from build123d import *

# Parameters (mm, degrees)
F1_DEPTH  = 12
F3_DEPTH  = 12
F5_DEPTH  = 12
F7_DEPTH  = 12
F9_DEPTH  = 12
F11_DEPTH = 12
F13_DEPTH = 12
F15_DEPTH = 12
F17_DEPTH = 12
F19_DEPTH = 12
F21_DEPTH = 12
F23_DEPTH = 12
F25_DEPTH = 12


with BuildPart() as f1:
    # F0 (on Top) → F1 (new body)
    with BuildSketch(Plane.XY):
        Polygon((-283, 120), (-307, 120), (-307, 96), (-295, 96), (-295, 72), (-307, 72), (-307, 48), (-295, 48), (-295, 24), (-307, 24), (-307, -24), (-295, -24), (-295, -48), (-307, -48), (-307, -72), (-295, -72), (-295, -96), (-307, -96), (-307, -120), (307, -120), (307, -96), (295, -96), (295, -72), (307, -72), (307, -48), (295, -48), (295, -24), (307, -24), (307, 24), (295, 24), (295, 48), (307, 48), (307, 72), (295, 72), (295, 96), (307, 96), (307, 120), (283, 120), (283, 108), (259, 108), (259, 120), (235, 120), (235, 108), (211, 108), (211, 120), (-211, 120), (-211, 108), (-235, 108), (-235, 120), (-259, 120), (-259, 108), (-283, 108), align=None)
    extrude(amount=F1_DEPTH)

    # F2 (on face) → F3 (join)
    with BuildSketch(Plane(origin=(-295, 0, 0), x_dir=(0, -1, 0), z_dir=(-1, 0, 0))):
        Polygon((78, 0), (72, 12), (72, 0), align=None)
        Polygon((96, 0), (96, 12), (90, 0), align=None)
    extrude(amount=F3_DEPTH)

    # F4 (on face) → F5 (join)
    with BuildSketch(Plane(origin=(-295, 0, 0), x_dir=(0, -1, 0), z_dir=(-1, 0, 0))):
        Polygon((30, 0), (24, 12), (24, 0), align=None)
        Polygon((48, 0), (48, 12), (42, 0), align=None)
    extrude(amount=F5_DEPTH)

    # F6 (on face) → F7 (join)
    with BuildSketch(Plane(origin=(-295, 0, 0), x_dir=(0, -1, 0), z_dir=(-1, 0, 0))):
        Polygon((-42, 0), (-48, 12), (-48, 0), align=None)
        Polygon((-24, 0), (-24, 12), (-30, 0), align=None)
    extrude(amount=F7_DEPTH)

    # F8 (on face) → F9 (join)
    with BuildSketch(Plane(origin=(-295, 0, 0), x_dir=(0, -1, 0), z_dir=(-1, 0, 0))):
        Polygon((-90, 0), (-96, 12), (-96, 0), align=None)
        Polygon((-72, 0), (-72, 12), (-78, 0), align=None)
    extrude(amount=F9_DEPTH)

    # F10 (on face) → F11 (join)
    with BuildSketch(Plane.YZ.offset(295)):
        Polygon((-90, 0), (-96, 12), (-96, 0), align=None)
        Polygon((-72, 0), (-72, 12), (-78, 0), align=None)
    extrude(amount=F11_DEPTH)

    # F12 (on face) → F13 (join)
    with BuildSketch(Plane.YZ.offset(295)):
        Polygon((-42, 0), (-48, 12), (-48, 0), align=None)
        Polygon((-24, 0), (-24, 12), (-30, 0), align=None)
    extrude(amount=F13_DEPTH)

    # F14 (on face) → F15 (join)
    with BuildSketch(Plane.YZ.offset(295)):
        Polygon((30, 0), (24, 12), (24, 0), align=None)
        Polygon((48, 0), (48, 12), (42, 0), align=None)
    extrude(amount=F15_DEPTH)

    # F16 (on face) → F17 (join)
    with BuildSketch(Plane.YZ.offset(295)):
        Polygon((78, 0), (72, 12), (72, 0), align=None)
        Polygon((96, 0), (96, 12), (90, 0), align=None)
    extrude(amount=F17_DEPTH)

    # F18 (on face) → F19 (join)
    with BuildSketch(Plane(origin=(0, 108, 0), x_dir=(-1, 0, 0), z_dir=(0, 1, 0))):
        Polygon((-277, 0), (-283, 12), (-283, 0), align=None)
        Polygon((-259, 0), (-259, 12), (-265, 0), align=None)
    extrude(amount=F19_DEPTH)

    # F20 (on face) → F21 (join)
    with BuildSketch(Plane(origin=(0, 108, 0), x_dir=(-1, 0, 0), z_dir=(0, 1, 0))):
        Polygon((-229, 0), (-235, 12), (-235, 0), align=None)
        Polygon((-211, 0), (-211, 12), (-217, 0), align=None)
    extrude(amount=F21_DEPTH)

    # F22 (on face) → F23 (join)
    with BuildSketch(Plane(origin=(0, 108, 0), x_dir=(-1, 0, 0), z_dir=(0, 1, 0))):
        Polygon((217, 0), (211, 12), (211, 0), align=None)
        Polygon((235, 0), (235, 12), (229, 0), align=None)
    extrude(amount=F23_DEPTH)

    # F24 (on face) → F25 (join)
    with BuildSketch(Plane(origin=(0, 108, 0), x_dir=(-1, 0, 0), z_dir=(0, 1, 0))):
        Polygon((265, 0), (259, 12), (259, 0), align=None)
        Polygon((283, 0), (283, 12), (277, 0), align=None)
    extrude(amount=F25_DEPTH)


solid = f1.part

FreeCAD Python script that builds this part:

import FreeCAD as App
import Part
import Sketcher
Q = App.Units.Quantity


def add_polygon(sketch, points):
    """Adds a closed chain of lines whose ends are joined by coincident constraints."""
    first, n = sketch.GeometryCount, len(points)
    for a, b in zip(points, points[1:] + points[:1]):
        sketch.addGeometry(Part.LineSegment(App.Vector(*a, 0), App.Vector(*b, 0)), False)
    for i in range(n):
        sketch.addConstraint(Sketcher.Constraint("Coincident", first + i, 2, first + (i + 1) % n, 1))

doc = App.newDocument("Part")
body = doc.addObject("PartDesign::Body", "Body")

sketch1 = body.newObject("Sketcher::SketchObject", "Sketch")
sketch1.AttachmentSupport = (doc.getObject("XY_Plane"), [""])
sketch1.MapMode = "FlatFace"
add_polygon(sketch1, [(-283, 120), (-307, 120), (-307, 96), (-295, 96), (-295, 72), (-307, 72), (-307, 48), (-295, 48), (-295, 24), (-307, 24), (-307, -24), (-295, -24), (-295, -48), (-307, -48), (-307, -72), (-295, -72), (-295, -96), (-307, -96), (-307, -120), (307, -120), (307, -96), (295, -96), (295, -72), (307, -72), (307, -48), (295, -48), (295, -24), (307, -24), (307, 24), (295, 24), (295, 48), (307, 48), (307, 72), (295, 72), (295, 96), (307, 96), (307, 120), (283, 120), (283, 108), (259, 108), (259, 120), (235, 120), (235, 108), (211, 108), (211, 120), (-211, 120), (-211, 108), (-235, 108), (-235, 120), (-259, 120), (-259, 108), (-283, 108)])
sketch1.addConstraint(Sketcher.Constraint("Horizontal", 0))
sketch1.addConstraint(Sketcher.Constraint("Vertical", 1))
sketch1.addConstraint(Sketcher.Constraint("Horizontal", 2))
sketch1.addConstraint(Sketcher.Constraint("Vertical", 3))
sketch1.addConstraint(Sketcher.Constraint("Horizontal", 4))
sketch1.addConstraint(Sketcher.Constraint("Vertical", 5))
sketch1.addConstraint(Sketcher.Constraint("Horizontal", 6))
sketch1.addConstraint(Sketcher.Constraint("Vertical", 7))
sketch1.addConstraint(Sketcher.Constraint("Horizontal", 8))
sketch1.addConstraint(Sketcher.Constraint("Vertical", 9))
sketch1.addConstraint(Sketcher.Constraint("Horizontal", 10))
sketch1.addConstraint(Sketcher.Constraint("Vertical", 11))
sketch1.addConstraint(Sketcher.Constraint("Horizontal", 12))
sketch1.addConstraint(Sketcher.Constraint("Vertical", 13))
sketch1.addConstraint(Sketcher.Constraint("Horizontal", 14))
sketch1.addConstraint(Sketcher.Constraint("Vertical", 15))
sketch1.addConstraint(Sketcher.Constraint("Horizontal", 16))
sketch1.addConstraint(Sketcher.Constraint("Vertical", 17))
sketch1.addConstraint(Sketcher.Constraint("Horizontal", 18))
sketch1.addConstraint(Sketcher.Constraint("Vertical", 19))
sketch1.addConstraint(Sketcher.Constraint("Horizontal", 20))
sketch1.addConstraint(Sketcher.Constraint("Vertical", 21))
sketch1.addConstraint(Sketcher.Constraint("Horizontal", 22))
sketch1.addConstraint(Sketcher.Constraint("Vertical", 23))
sketch1.addConstraint(Sketcher.Constraint("Horizontal", 24))
sketch1.addConstraint(Sketcher.Constraint("Vertical", 25))
sketch1.addConstraint(Sketcher.Constraint("Horizontal", 26))
sketch1.addConstraint(Sketcher.Constraint("Vertical", 27))
sketch1.addConstraint(Sketcher.Constraint("Horizontal", 28))
sketch1.addConstraint(Sketcher.Constraint("Vertical", 29))
sketch1.addConstraint(Sketcher.Constraint("Horizontal", 30))
sketch1.addConstraint(Sketcher.Constraint("Vertical", 31))
sketch1.addConstraint(Sketcher.Constraint("Horizontal", 32))
sketch1.addConstraint(Sketcher.Constraint("Vertical", 33))
sketch1.addConstraint(Sketcher.Constraint("Horizontal", 34))
sketch1.addConstraint(Sketcher.Constraint("Vertical", 35))
sketch1.addConstraint(Sketcher.Constraint("Horizontal", 36))
sketch1.addConstraint(Sketcher.Constraint("Vertical", 37))
sketch1.addConstraint(Sketcher.Constraint("Horizontal", 38))
sketch1.addConstraint(Sketcher.Constraint("Vertical", 39))
sketch1.addConstraint(Sketcher.Constraint("Horizontal", 40))
sketch1.addConstraint(Sketcher.Constraint("Vertical", 41))
sketch1.addConstraint(Sketcher.Constraint("Horizontal", 42))
sketch1.addConstraint(Sketcher.Constraint("Vertical", 43))
sketch1.addConstraint(Sketcher.Constraint("Horizontal", 44))
sketch1.addConstraint(Sketcher.Constraint("Vertical", 45))
sketch1.addConstraint(Sketcher.Constraint("Horizontal", 46))
sketch1.addConstraint(Sketcher.Constraint("Vertical", 47))
sketch1.addConstraint(Sketcher.Constraint("Horizontal", 48))
sketch1.addConstraint(Sketcher.Constraint("Vertical", 49))
sketch1.addConstraint(Sketcher.Constraint("Horizontal", 50))
sketch1.addConstraint(Sketcher.Constraint("Vertical", 51))
sketch1.addConstraint(Sketcher.Constraint("Symmetric", 0, 2, 18, 2, -1, 1))
sketch1.addConstraint(Sketcher.Constraint("Symmetric", 2, 2, 20, 2, -1, 1))
sketch1.addConstraint(Sketcher.Constraint("Symmetric", 4, 2, 22, 2, -1, 1))
sketch1.addConstraint(Sketcher.Constraint("Symmetric", 6, 2, 24, 2, -1, 1))
sketch1.addConstraint(Sketcher.Constraint("Symmetric", 8, 2, 26, 2, -1, 1))
sketch1.addConstraint(Sketcher.Constraint("Symmetric", 10, 2, 28, 2, -1, 1))
sketch1.addConstraint(Sketcher.Constraint("Symmetric", 12, 2, 30, 2, -1, 1))
sketch1.addConstraint(Sketcher.Constraint("Symmetric", 14, 2, 32, 2, -1, 1))
sketch1.addConstraint(Sketcher.Constraint("Symmetric", 16, 2, 34, 2, -1, 1))
sketch1.addConstraint(Sketcher.Constraint("Symmetric", 16, 2, 19, 2, -2))
sketch1.addConstraint(Sketcher.Constraint("Symmetric", 14, 2, 21, 2, -2))
sketch1.addConstraint(Sketcher.Constraint("Symmetric", 12, 2, 23, 2, -2))
sketch1.addConstraint(Sketcher.Constraint("Symmetric", 10, 2, 25, 2, -2))
sketch1.addConstraint(Sketcher.Constraint("Symmetric", 42, 2, 45, 2, -2))
sketch1.addConstraint(Sketcher.Constraint("Symmetric", 40, 2, 47, 2, -2))
sketch1.addConstraint(Sketcher.Constraint("Symmetric", 38, 2, 49, 2, -2))
sketch1.addConstraint(Sketcher.Constraint("Symmetric", 36, 2, 51, 2, -2))
sketch1.addConstraint(Sketcher.Constraint("Horizontal", 36, 2, 39, 2))
sketch1.addConstraint(Sketcher.Constraint("Horizontal", 38, 2, 41, 2))
sketch1.addConstraint(Sketcher.Constraint("Horizontal", 40, 2, 43, 2))
sketch1.addConstraint(Sketcher.Constraint("Vertical", 1, 2, 4, 2))
sketch1.addConstraint(Sketcher.Constraint("Vertical", 3, 2, 6, 2))
sketch1.addConstraint(Sketcher.Constraint("Vertical", 5, 2, 8, 2))
sketch1.addConstraint(Sketcher.Constraint("Equal", 36, 38))
sketch1.addConstraint(Sketcher.Constraint("Equal", 38, 40))
sketch1.addConstraint(Sketcher.Constraint("Equal", 40, 42))
sketch1.addConstraint(Sketcher.Constraint("Equal", 50, 1))
sketch1.addConstraint(Sketcher.Constraint("Equal", 1, 3))
sketch1.addConstraint(Sketcher.Constraint("Equal", 3, 5))
sketch1.addConstraint(Sketcher.Constraint("Equal", 5, 7))
sketch1.addConstraint(Sketcher.Constraint("Equal", 34, 37))
sketch1.addConstraint(Sketcher.Constraint("DistanceX", 0, 2, 0, 1, Q("24 mm")))
sketch1.addConstraint(Sketcher.Constraint("DistanceX", 2, 1, 2, 2, Q("12 mm")))
sketch1.addConstraint(Sketcher.Constraint("DistanceX", 18, 1, 18, 2, Q("614 mm")))
sketch1.addConstraint(Sketcher.Constraint("DistanceY", 9, 2, 9, 1, Q("48 mm")))
pad1 = body.newObject("PartDesign::Pad", "Pad")
pad1.Profile = sketch1
pad1.Length = 12

sketch2 = body.newObject("Sketcher::SketchObject", "Sketch001")
sketch2.AttachmentSupport = (doc.getObject("YZ_Plane"), [""])
sketch2.MapMode = "FlatFace"
sketch2.AttachmentOffset = App.Placement(App.Vector(0, 0, -295), App.Rotation())
add_polygon(sketch2, [(-78, 0), (-72, 12), (-72, 0)])
add_polygon(sketch2, [(-96, 0), (-96, 12), (-90, 0)])
sketch2.addConstraint(Sketcher.Constraint("Vertical", 1))
sketch2.addConstraint(Sketcher.Constraint("Horizontal", 2))
sketch2.addConstraint(Sketcher.Constraint("Vertical", 3))
sketch2.addConstraint(Sketcher.Constraint("Horizontal", 5))
sketch2.addConstraint(Sketcher.Constraint("PointOnObject", 1, 2, -1))
sketch2.addConstraint(Sketcher.Constraint("PointOnObject", 4, 2, -1))
sketch2.addConstraint(Sketcher.Constraint("Horizontal", 0, 2, 3, 2))
sketch2.addConstraint(Sketcher.Constraint("Equal", 2, 5))
sketch2.addConstraint(Sketcher.Constraint("DistanceX", 2, 2, 2, 1, Q("6 mm")))
sketch2.addConstraint(Sketcher.Constraint("DistanceY", 1, 2, 1, 1, Q("12 mm")))
sketch2.addConstraint(Sketcher.Constraint("DistanceX", 0, 2, -1, 1, Q("72 mm")))
sketch2.addConstraint(Sketcher.Constraint("DistanceX", 3, 2, -1, 1, Q("96 mm")))
pad2 = body.newObject("PartDesign::Pad", "Pad001")
pad2.Profile = sketch2
pad2.Length = 12
pad2.Reversed = True

sketch3 = body.newObject("Sketcher::SketchObject", "Sketch002")
sketch3.AttachmentSupport = (doc.getObject("YZ_Plane"), [""])
sketch3.MapMode = "FlatFace"
sketch3.AttachmentOffset = App.Placement(App.Vector(0, 0, -295), App.Rotation())
add_polygon(sketch3, [(-30, 0), (-24, 12), (-24, 0)])
add_polygon(sketch3, [(-48, 0), (-48, 12), (-42, 0)])
sketch3.addConstraint(Sketcher.Constraint("Vertical", 1))
sketch3.addConstraint(Sketcher.Constraint("Horizontal", 2))
sketch3.addConstraint(Sketcher.Constraint("Vertical", 3))
sketch3.addConstraint(Sketcher.Constraint("Horizontal", 5))
sketch3.addConstraint(Sketcher.Constraint("PointOnObject", 1, 2, -1))
sketch3.addConstraint(Sketcher.Constraint("PointOnObject", 4, 2, -1))
sketch3.addConstraint(Sketcher.Constraint("Horizontal", 0, 2, 3, 2))
sketch3.addConstraint(Sketcher.Constraint("Equal", 2, 5))
sketch3.addConstraint(Sketcher.Constraint("DistanceX", 2, 2, 2, 1, Q("6 mm")))
sketch3.addConstraint(Sketcher.Constraint("DistanceY", 1, 2, 1, 1, Q("12 mm")))
sketch3.addConstraint(Sketcher.Constraint("DistanceX", 0, 2, -1, 1, Q("24 mm")))
sketch3.addConstraint(Sketcher.Constraint("DistanceX", 3, 2, -1, 1, Q("48 mm")))
pad3 = body.newObject("PartDesign::Pad", "Pad002")
pad3.Profile = sketch3
pad3.Length = 12
pad3.Reversed = True

sketch4 = body.newObject("Sketcher::SketchObject", "Sketch003")
sketch4.AttachmentSupport = (doc.getObject("YZ_Plane"), [""])
sketch4.MapMode = "FlatFace"
sketch4.AttachmentOffset = App.Placement(App.Vector(0, 0, -295), App.Rotation())
add_polygon(sketch4, [(42, 0), (48, 12), (48, 0)])
add_polygon(sketch4, [(24, 0), (24, 12), (30, 0)])
sketch4.addConstraint(Sketcher.Constraint("Vertical", 1))
sketch4.addConstraint(Sketcher.Constraint("Horizontal", 2))
sketch4.addConstraint(Sketcher.Constraint("Vertical", 3))
sketch4.addConstraint(Sketcher.Constraint("Horizontal", 5))
sketch4.addConstraint(Sketcher.Constraint("PointOnObject", 1, 2, -1))
sketch4.addConstraint(Sketcher.Constraint("PointOnObject", 4, 2, -1))
sketch4.addConstraint(Sketcher.Constraint("Horizontal", 0, 2, 3, 2))
sketch4.addConstraint(Sketcher.Constraint("Equal", 2, 5))
sketch4.addConstraint(Sketcher.Constraint("DistanceX", 2, 2, 2, 1, Q("6 mm")))
sketch4.addConstraint(Sketcher.Constraint("DistanceY", 1, 2, 1, 1, Q("12 mm")))
sketch4.addConstraint(Sketcher.Constraint("DistanceX", -1, 1, 0, 2, Q("48 mm")))
sketch4.addConstraint(Sketcher.Constraint("DistanceX", -1, 1, 3, 2, Q("24 mm")))
pad4 = body.newObject("PartDesign::Pad", "Pad003")
pad4.Profile = sketch4
pad4.Length = 12
pad4.Reversed = True

sketch5 = body.newObject("Sketcher::SketchObject", "Sketch004")
sketch5.AttachmentSupport = (doc.getObject("YZ_Plane"), [""])
sketch5.MapMode = "FlatFace"
sketch5.AttachmentOffset = App.Placement(App.Vector(0, 0, -295), App.Rotation())
add_polygon(sketch5, [(90, 0), (96, 12), (96, 0)])
add_polygon(sketch5, [(72, 0), (72, 12), (78, 0)])
sketch5.addConstraint(Sketcher.Constraint("Vertical", 1))
sketch5.addConstraint(Sketcher.Constraint("Horizontal", 2))
sketch5.addConstraint(Sketcher.Constraint("Vertical", 3))
sketch5.addConstraint(Sketcher.Constraint("Horizontal", 5))
sketch5.addConstraint(Sketcher.Constraint("PointOnObject", 1, 2, -1))
sketch5.addConstraint(Sketcher.Constraint("PointOnObject", 4, 2, -1))
sketch5.addConstraint(Sketcher.Constraint("Horizontal", 0, 2, 3, 2))
sketch5.addConstraint(Sketcher.Constraint("Equal", 2, 5))
sketch5.addConstraint(Sketcher.Constraint("DistanceX", 2, 2, 2, 1, Q("6 mm")))
sketch5.addConstraint(Sketcher.Constraint("DistanceY", 1, 2, 1, 1, Q("12 mm")))
sketch5.addConstraint(Sketcher.Constraint("DistanceX", -1, 1, 0, 2, Q("96 mm")))
sketch5.addConstraint(Sketcher.Constraint("DistanceX", -1, 1, 3, 2, Q("72 mm")))
pad5 = body.newObject("PartDesign::Pad", "Pad004")
pad5.Profile = sketch5
pad5.Length = 12
pad5.Reversed = True

sketch6 = body.newObject("Sketcher::SketchObject", "Sketch005")
sketch6.AttachmentSupport = (doc.getObject("YZ_Plane"), [""])
sketch6.MapMode = "FlatFace"
sketch6.AttachmentOffset = App.Placement(App.Vector(0, 0, 295), App.Rotation())
add_polygon(sketch6, [(-90, 0), (-96, 12), (-96, 0)])
add_polygon(sketch6, [(-72, 0), (-72, 12), (-78, 0)])
sketch6.addConstraint(Sketcher.Constraint("Vertical", 1))
sketch6.addConstraint(Sketcher.Constraint("Horizontal", 2))
sketch6.addConstraint(Sketcher.Constraint("Vertical", 3))
sketch6.addConstraint(Sketcher.Constraint("Horizontal", 5))
sketch6.addConstraint(Sketcher.Constraint("PointOnObject", 1, 2, -1))
sketch6.addConstraint(Sketcher.Constraint("PointOnObject", 4, 2, -1))
sketch6.addConstraint(Sketcher.Constraint("Horizontal", 0, 2, 3, 2))
sketch6.addConstraint(Sketcher.Constraint("Equal", 2, 5))
sketch6.addConstraint(Sketcher.Constraint("DistanceX", 2, 1, 2, 2, Q("6 mm")))
sketch6.addConstraint(Sketcher.Constraint("DistanceY", 1, 2, 1, 1, Q("12 mm")))
sketch6.addConstraint(Sketcher.Constraint("DistanceX", 0, 2, -1, 1, Q("96 mm")))
sketch6.addConstraint(Sketcher.Constraint("DistanceX", 3, 2, -1, 1, Q("72 mm")))
pad6 = body.newObject("PartDesign::Pad", "Pad005")
pad6.Profile = sketch6
pad6.Length = 12

sketch7 = body.newObject("Sketcher::SketchObject", "Sketch006")
sketch7.AttachmentSupport = (doc.getObject("YZ_Plane"), [""])
sketch7.MapMode = "FlatFace"
sketch7.AttachmentOffset = App.Placement(App.Vector(0, 0, 295), App.Rotation())
add_polygon(sketch7, [(-42, 0), (-48, 12), (-48, 0)])
add_polygon(sketch7, [(-24, 0), (-24, 12), (-30, 0)])
sketch7.addConstraint(Sketcher.Constraint("Vertical", 1))
sketch7.addConstraint(Sketcher.Constraint("Horizontal", 2))
sketch7.addConstraint(Sketcher.Constraint("Vertical", 3))
sketch7.addConstraint(Sketcher.Constraint("Horizontal", 5))
sketch7.addConstraint(Sketcher.Constraint("PointOnObject", 1, 2, -1))
sketch7.addConstraint(Sketcher.Constraint("PointOnObject", 4, 2, -1))
sketch7.addConstraint(Sketcher.Constraint("Horizontal", 0, 2, 3, 2))
sketch7.addConstraint(Sketcher.Constraint("Equal", 2, 5))
sketch7.addConstraint(Sketcher.Constraint("DistanceX", 2, 1, 2, 2, Q("6 mm")))
sketch7.addConstraint(Sketcher.Constraint("DistanceY", 1, 2, 1, 1, Q("12 mm")))
sketch7.addConstraint(Sketcher.Constraint("DistanceX", 0, 2, -1, 1, Q("48 mm")))
sketch7.addConstraint(Sketcher.Constraint("DistanceX", 3, 2, -1, 1, Q("24 mm")))
pad7 = body.newObject("PartDesign::Pad", "Pad006")
pad7.Profile = sketch7
pad7.Length = 12

sketch8 = body.newObject("Sketcher::SketchObject", "Sketch007")
sketch8.AttachmentSupport = (doc.getObject("YZ_Plane"), [""])
sketch8.MapMode = "FlatFace"
sketch8.AttachmentOffset = App.Placement(App.Vector(0, 0, 295), App.Rotation())
add_polygon(sketch8, [(30, 0), (24, 12), (24, 0)])
add_polygon(sketch8, [(48, 0), (48, 12), (42, 0)])
sketch8.addConstraint(Sketcher.Constraint("Vertical", 1))
sketch8.addConstraint(Sketcher.Constraint("Horizontal", 2))
sketch8.addConstraint(Sketcher.Constraint("Vertical", 3))
sketch8.addConstraint(Sketcher.Constraint("Horizontal", 5))
sketch8.addConstraint(Sketcher.Constraint("PointOnObject", 1, 2, -1))
sketch8.addConstraint(Sketcher.Constraint("PointOnObject", 4, 2, -1))
sketch8.addConstraint(Sketcher.Constraint("Horizontal", 0, 2, 3, 2))
sketch8.addConstraint(Sketcher.Constraint("Equal", 2, 5))
sketch8.addConstraint(Sketcher.Constraint("DistanceX", 2, 1, 2, 2, Q("6 mm")))
sketch8.addConstraint(Sketcher.Constraint("DistanceY", 1, 2, 1, 1, Q("12 mm")))
sketch8.addConstraint(Sketcher.Constraint("DistanceX", -1, 1, 0, 2, Q("24 mm")))
sketch8.addConstraint(Sketcher.Constraint("DistanceX", -1, 1, 3, 2, Q("48 mm")))
pad8 = body.newObject("PartDesign::Pad", "Pad007")
pad8.Profile = sketch8
pad8.Length = 12

sketch9 = body.newObject("Sketcher::SketchObject", "Sketch008")
sketch9.AttachmentSupport = (doc.getObject("YZ_Plane"), [""])
sketch9.MapMode = "FlatFace"
sketch9.AttachmentOffset = App.Placement(App.Vector(0, 0, 295), App.Rotation())
add_polygon(sketch9, [(78, 0), (72, 12), (72, 0)])
add_polygon(sketch9, [(96, 0), (96, 12), (90, 0)])
sketch9.addConstraint(Sketcher.Constraint("Vertical", 1))
sketch9.addConstraint(Sketcher.Constraint("Horizontal", 2))
sketch9.addConstraint(Sketcher.Constraint("Vertical", 3))
sketch9.addConstraint(Sketcher.Constraint("Horizontal", 5))
sketch9.addConstraint(Sketcher.Constraint("PointOnObject", 1, 2, -1))
sketch9.addConstraint(Sketcher.Constraint("PointOnObject", 4, 2, -1))
sketch9.addConstraint(Sketcher.Constraint("Horizontal", 0, 2, 3, 2))
sketch9.addConstraint(Sketcher.Constraint("Equal", 2, 5))
sketch9.addConstraint(Sketcher.Constraint("DistanceX", 2, 1, 2, 2, Q("6 mm")))
sketch9.addConstraint(Sketcher.Constraint("DistanceY", 1, 2, 1, 1, Q("12 mm")))
sketch9.addConstraint(Sketcher.Constraint("DistanceX", -1, 1, 0, 2, Q("72 mm")))
sketch9.addConstraint(Sketcher.Constraint("DistanceX", -1, 1, 3, 2, Q("96 mm")))
pad9 = body.newObject("PartDesign::Pad", "Pad008")
pad9.Profile = sketch9
pad9.Length = 12

sketch10 = body.newObject("Sketcher::SketchObject", "Sketch009")
sketch10.AttachmentSupport = (doc.getObject("XZ_Plane"), [""])
sketch10.MapMode = "FlatFace"
sketch10.AttachmentOffset = App.Placement(App.Vector(0, 0, -108), App.Rotation())
add_polygon(sketch10, [(277, 0), (283, 12), (283, 0)])
add_polygon(sketch10, [(259, 0), (259, 12), (265, 0)])
sketch10.addConstraint(Sketcher.Constraint("Vertical", 1))
sketch10.addConstraint(Sketcher.Constraint("Horizontal", 2))
sketch10.addConstraint(Sketcher.Constraint("Vertical", 3))
sketch10.addConstraint(Sketcher.Constraint("Horizontal", 5))
sketch10.addConstraint(Sketcher.Constraint("PointOnObject", 1, 2, -1))
sketch10.addConstraint(Sketcher.Constraint("PointOnObject", 4, 2, -1))
sketch10.addConstraint(Sketcher.Constraint("Horizontal", 0, 2, 3, 2))
sketch10.addConstraint(Sketcher.Constraint("Equal", 2, 5))
sketch10.addConstraint(Sketcher.Constraint("DistanceX", 2, 2, 2, 1, Q("6 mm")))
sketch10.addConstraint(Sketcher.Constraint("DistanceY", 1, 2, 1, 1, Q("12 mm")))
sketch10.addConstraint(Sketcher.Constraint("DistanceX", -1, 1, 0, 2, Q("283 mm")))
sketch10.addConstraint(Sketcher.Constraint("DistanceX", -1, 1, 3, 2, Q("259 mm")))
pad10 = body.newObject("PartDesign::Pad", "Pad009")
pad10.Profile = sketch10
pad10.Length = 12
pad10.Reversed = True

sketch11 = body.newObject("Sketcher::SketchObject", "Sketch010")
sketch11.AttachmentSupport = (doc.getObject("XZ_Plane"), [""])
sketch11.MapMode = "FlatFace"
sketch11.AttachmentOffset = App.Placement(App.Vector(0, 0, -108), App.Rotation())
add_polygon(sketch11, [(229, 0), (235, 12), (235, 0)])
add_polygon(sketch11, [(211, 0), (211, 12), (217, 0)])
sketch11.addConstraint(Sketcher.Constraint("Vertical", 1))
sketch11.addConstraint(Sketcher.Constraint("Horizontal", 2))
sketch11.addConstraint(Sketcher.Constraint("Vertical", 3))
sketch11.addConstraint(Sketcher.Constraint("Horizontal", 5))
sketch11.addConstraint(Sketcher.Constraint("PointOnObject", 1, 2, -1))
sketch11.addConstraint(Sketcher.Constraint("PointOnObject", 4, 2, -1))
sketch11.addConstraint(Sketcher.Constraint("Horizontal", 0, 2, 3, 2))
sketch11.addConstraint(Sketcher.Constraint("Equal", 2, 5))
sketch11.addConstraint(Sketcher.Constraint("DistanceX", 2, 2, 2, 1, Q("6 mm")))
sketch11.addConstraint(Sketcher.Constraint("DistanceY", 1, 2, 1, 1, Q("12 mm")))
sketch11.addConstraint(Sketcher.Constraint("DistanceX", -1, 1, 0, 2, Q("235 mm")))
sketch11.addConstraint(Sketcher.Constraint("DistanceX", -1, 1, 3, 2, Q("211 mm")))
pad11 = body.newObject("PartDesign::Pad", "Pad010")
pad11.Profile = sketch11
pad11.Length = 12
pad11.Reversed = True

sketch12 = body.newObject("Sketcher::SketchObject", "Sketch011")
sketch12.AttachmentSupport = (doc.getObject("XZ_Plane"), [""])
sketch12.MapMode = "FlatFace"
sketch12.AttachmentOffset = App.Placement(App.Vector(0, 0, -108), App.Rotation())
add_polygon(sketch12, [(-217, 0), (-211, 12), (-211, 0)])
add_polygon(sketch12, [(-235, 0), (-235, 12), (-229, 0)])
sketch12.addConstraint(Sketcher.Constraint("Vertical", 1))
sketch12.addConstraint(Sketcher.Constraint("Horizontal", 2))
sketch12.addConstraint(Sketcher.Constraint("Vertical", 3))
sketch12.addConstraint(Sketcher.Constraint("Horizontal", 5))
sketch12.addConstraint(Sketcher.Constraint("PointOnObject", 1, 2, -1))
sketch12.addConstraint(Sketcher.Constraint("PointOnObject", 4, 2, -1))
sketch12.addConstraint(Sketcher.Constraint("Horizontal", 0, 2, 3, 2))
sketch12.addConstraint(Sketcher.Constraint("Equal", 2, 5))
sketch12.addConstraint(Sketcher.Constraint("DistanceX", 2, 2, 2, 1, Q("6 mm")))
sketch12.addConstraint(Sketcher.Constraint("DistanceY", 1, 2, 1, 1, Q("12 mm")))
sketch12.addConstraint(Sketcher.Constraint("DistanceX", 0, 2, -1, 1, Q("211 mm")))
sketch12.addConstraint(Sketcher.Constraint("DistanceX", 3, 2, -1, 1, Q("235 mm")))
pad12 = body.newObject("PartDesign::Pad", "Pad011")
pad12.Profile = sketch12
pad12.Length = 12
pad12.Reversed = True

sketch13 = body.newObject("Sketcher::SketchObject", "Sketch012")
sketch13.AttachmentSupport = (doc.getObject("XZ_Plane"), [""])
sketch13.MapMode = "FlatFace"
sketch13.AttachmentOffset = App.Placement(App.Vector(0, 0, -108), App.Rotation())
add_polygon(sketch13, [(-265, 0), (-259, 12), (-259, 0)])
add_polygon(sketch13, [(-283, 0), (-283, 12), (-277, 0)])
sketch13.addConstraint(Sketcher.Constraint("Vertical", 1))
sketch13.addConstraint(Sketcher.Constraint("Horizontal", 2))
sketch13.addConstraint(Sketcher.Constraint("Vertical", 3))
sketch13.addConstraint(Sketcher.Constraint("Horizontal", 5))
sketch13.addConstraint(Sketcher.Constraint("PointOnObject", 1, 2, -1))
sketch13.addConstraint(Sketcher.Constraint("PointOnObject", 4, 2, -1))
sketch13.addConstraint(Sketcher.Constraint("Horizontal", 0, 2, 3, 2))
sketch13.addConstraint(Sketcher.Constraint("Equal", 2, 5))
sketch13.addConstraint(Sketcher.Constraint("DistanceX", 2, 2, 2, 1, Q("6 mm")))
sketch13.addConstraint(Sketcher.Constraint("DistanceY", 1, 2, 1, 1, Q("12 mm")))
sketch13.addConstraint(Sketcher.Constraint("DistanceX", 0, 2, -1, 1, Q("259 mm")))
sketch13.addConstraint(Sketcher.Constraint("DistanceX", 3, 2, -1, 1, Q("283 mm")))
pad13 = body.newObject("PartDesign::Pad", "Pad012")
pad13.Profile = sketch13
pad13.Length = 12
pad13.Reversed = True

doc.recompute()
